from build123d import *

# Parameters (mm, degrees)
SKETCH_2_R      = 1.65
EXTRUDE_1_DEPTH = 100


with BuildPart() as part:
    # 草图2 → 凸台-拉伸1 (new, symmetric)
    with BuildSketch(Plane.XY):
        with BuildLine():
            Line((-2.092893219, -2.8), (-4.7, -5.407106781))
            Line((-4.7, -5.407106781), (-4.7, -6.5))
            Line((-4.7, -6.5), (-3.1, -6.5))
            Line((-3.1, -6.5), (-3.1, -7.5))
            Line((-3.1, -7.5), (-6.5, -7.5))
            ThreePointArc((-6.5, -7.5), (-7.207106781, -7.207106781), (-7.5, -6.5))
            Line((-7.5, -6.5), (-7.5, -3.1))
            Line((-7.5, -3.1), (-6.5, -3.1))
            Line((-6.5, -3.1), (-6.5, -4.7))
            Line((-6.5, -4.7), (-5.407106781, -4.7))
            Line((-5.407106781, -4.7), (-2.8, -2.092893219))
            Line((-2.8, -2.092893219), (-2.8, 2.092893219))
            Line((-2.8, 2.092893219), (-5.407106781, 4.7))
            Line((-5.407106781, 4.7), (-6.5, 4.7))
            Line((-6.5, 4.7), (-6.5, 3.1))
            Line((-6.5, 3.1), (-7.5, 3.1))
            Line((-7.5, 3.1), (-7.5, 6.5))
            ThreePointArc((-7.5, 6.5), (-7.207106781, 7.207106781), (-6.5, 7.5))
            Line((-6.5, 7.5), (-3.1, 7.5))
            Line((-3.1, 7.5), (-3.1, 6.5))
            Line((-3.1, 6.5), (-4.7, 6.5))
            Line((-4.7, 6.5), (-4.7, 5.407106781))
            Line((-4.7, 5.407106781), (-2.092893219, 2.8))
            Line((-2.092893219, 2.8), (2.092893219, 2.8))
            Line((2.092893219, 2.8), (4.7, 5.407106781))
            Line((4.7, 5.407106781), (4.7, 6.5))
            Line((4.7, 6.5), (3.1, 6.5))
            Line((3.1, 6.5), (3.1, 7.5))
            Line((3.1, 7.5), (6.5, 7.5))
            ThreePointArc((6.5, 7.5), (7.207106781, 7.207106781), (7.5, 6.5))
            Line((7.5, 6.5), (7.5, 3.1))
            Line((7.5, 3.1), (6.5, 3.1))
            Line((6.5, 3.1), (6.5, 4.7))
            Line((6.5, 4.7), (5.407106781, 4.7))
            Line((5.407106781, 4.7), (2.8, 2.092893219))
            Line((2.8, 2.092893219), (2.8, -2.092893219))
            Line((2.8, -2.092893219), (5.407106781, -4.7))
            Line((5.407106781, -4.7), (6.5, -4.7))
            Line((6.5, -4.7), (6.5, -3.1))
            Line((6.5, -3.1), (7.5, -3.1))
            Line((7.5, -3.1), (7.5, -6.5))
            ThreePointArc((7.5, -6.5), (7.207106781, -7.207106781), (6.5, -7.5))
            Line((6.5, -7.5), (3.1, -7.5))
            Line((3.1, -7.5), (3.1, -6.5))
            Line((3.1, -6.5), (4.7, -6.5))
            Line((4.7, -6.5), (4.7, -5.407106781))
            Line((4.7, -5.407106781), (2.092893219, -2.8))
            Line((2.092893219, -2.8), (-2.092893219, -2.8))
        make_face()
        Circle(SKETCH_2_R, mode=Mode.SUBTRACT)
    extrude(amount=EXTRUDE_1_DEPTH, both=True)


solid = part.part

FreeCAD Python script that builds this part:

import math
import FreeCAD as App
import Part
import Sketcher

V = App.Vector
Q = App.Units.Quantity

doc = App.newDocument("Part")
body = doc.addObject("PartDesign::Body", "Body")

# Sketch on XY plane
sketch1 = body.newObject("Sketcher::SketchObject", "Sketch")
sketch1.AttachmentSupport = (doc.getObject("XY_Plane"), [""])
sketch1.MapMode = "FlatFace"
sketch1.addGeometry([
    Part.LineSegment(V(-4.7, -5.407107, 0), V(-2.092893, -2.8, 0)),  # 0
    Part.LineSegment(V(-2.092893, -2.8, 0), V(2.092893, -2.8, 0)),  # 1
    Part.LineSegment(V(2.092893, -2.8, 0), V(4.7, -5.407107, 0)),  # 2
    Part.LineSegment(V(4.7, -5.407107, 0), V(4.7, -6.5, 0)),  # 3
    Part.LineSegment(V(4.7, -6.5, 0), V(3.1, -6.5, 0)),  # 4
    Part.LineSegment(V(3.1, -6.5, 0), V(3.1, -7.5, 0)),  # 5
    Part.LineSegment(V(3.1, -7.5, 0), V(6.5, -7.5, 0)),  # 6
    Part.ArcOfCircle(Part.Circle(V(6.5, -6.5, 0), V(0, 0, 1), 1), math.radians(-90), math.radians(0)),  # 7
    Part.LineSegment(V(7.5, -6.5, 0), V(7.5, -3.1, 0)),  # 8
    Part.LineSegment(V(7.5, -3.1, 0), V(6.5, -3.1, 0)),  # 9
    Part.LineSegment(V(6.5, -3.1, 0), V(6.5, -4.7, 0)),  # 10
    Part.LineSegment(V(6.5, -4.7, 0), V(5.407107, -4.7, 0)),  # 11
    Part.LineSegment(V(5.407107, -4.7, 0), V(2.8, -2.092893, 0)),  # 12
    Part.LineSegment(V(2.8, -2.092893, 0), V(2.8, 2.092893, 0)),  # 13
    Part.LineSegment(V(2.8, 2.092893, 0), V(5.407107, 4.7, 0)),  # 14
    Part.LineSegment(V(5.407107, 4.7, 0), V(6.5, 4.7, 0)),  # 15
    Part.LineSegment(V(6.5, 4.7, 0), V(6.5, 3.1, 0)),  # 16
    Part.LineSegment(V(6.5, 3.1, 0), V(7.5, 3.1, 0)),  # 17
    Part.LineSegment(V(7.5, 3.1, 0), V(7.5, 6.5, 0)),  # 18
    Part.ArcOfCircle(Part.Circle(V(6.5, 6.5, 0), V(0, 0, 1), 1), math.radians(0), math.radians(90)),  # 19
    Part.LineSegment(V(6.5, 7.5, 0), V(3.1, 7.5, 0)),  # 20
    Part.LineSegment(V(3.1, 7.5, 0), V(3.1, 6.5, 0)),  # 21
    Part.LineSegment(V(3.1, 6.5, 0), V(4.7, 6.5, 0)),  # 22
    Part.LineSegment(V(4.7, 6.5, 0), V(4.7, 5.407107, 0)),  # 23
    Part.LineSegment(V(4.7, 5.407107, 0), V(2.092893, 2.8, 0)),  # 24
    Part.LineSegment(V(2.092893, 2.8, 0), V(-2.092893, 2.8, 0)),  # 25
    Part.LineSegment(V(-2.092893, 2.8, 0), V(-4.7, 5.407107, 0)),  # 26
    Part.LineSegment(V(-4.7, 5.407107, 0), V(-4.7, 6.5, 0)),  # 27
    Part.LineSegment(V(-4.7, 6.5, 0), V(-3.1, 6.5, 0)),  # 28
    Part.LineSegment(V(-3.1, 6.5, 0), V(-3.1, 7.5, 0)),  # 29
    Part.LineSegment(V(-3.1, 7.5, 0), V(-6.5, 7.5, 0)),  # 30
    Part.ArcOfCircle(Part.Circle(V(-6.5, 6.5, 0), V(0, 0, 1), 1), math.radians(90), math.radians(180)),  # 31
    Part.LineSegment(V(-7.5, 6.5, 0), V(-7.5, 3.1, 0)),  # 32
    Part.LineSegment(V(-7.5, 3.1, 0), V(-6.5, 3.1, 0)),  # 33
    Part.LineSegment(V(-6.5, 3.1, 0), V(-6.5, 4.7, 0)),  # 34
    Part.LineSegment(V(-6.5, 4.7, 0), V(-5.407107, 4.7, 0)),  # 35
    Part.LineSegment(V(-5.407107, 4.7, 0), V(-2.8, 2.092893, 0)),  # 36
    Part.LineSegment(V(-2.8, 2.092893, 0), V(-2.8, -2.092893, 0)),  # 37
    Part.LineSegment(V(-2.8, -2.092893, 0), V(-5.407107, -4.7, 0)),  # 38
    Part.LineSegment(V(-5.407107, -4.7, 0), V(-6.5, -4.7, 0)),  # 39
    Part.LineSegment(V(-6.5, -4.7, 0), V(-6.5, -3.1, 0)),  # 40
    Part.LineSegment(V(-6.5, -3.1, 0), V(-7.5, -3.1, 0)),  # 41
    Part.LineSegment(V(-7.5, -3.1, 0), V(-7.5, -6.5, 0)),  # 42
    Part.ArcOfCircle(Part.Circle(V(-6.5, -6.5, 0), V(0, 0, 1), 1), math.radians(-180), math.radians(-90)),  # 43
    Part.LineSegment(V(-6.5, -7.5, 0), V(-3.1, -7.5, 0)),  # 44
    Part.LineSegment(V(-3.1, -7.5, 0), V(-3.1, -6.5, 0)),  # 45
    Part.LineSegment(V(-3.1, -6.5, 0), V(-4.7, -6.5, 0)),  # 46
    Part.LineSegment(V(-4.7, -6.5, 0), V(-4.7, -5.407107, 0)),  # 47
    Part.Circle(V(0, 0, 0), V(0, 0, 1), 1.65),  # 48
], False)
sketch1.addConstraint([
    Sketcher.Constraint("Coincident", 0, 2, 1, 1),
    Sketcher.Constraint("Coincident", 1, 2, 2, 1),
    Sketcher.Constraint("Coincident", 2, 2, 3, 1),
    Sketcher.Constraint("Coincident", 3, 2, 4, 1),
    Sketcher.Constraint("Coincident", 4, 2, 5, 1),
    Sketcher.Constraint("Coincident", 5, 2, 6, 1),
    Sketcher.Constraint("Tangent", 6, 2, 7, 1),
    Sketcher.Constraint("Tangent", 7, 2, 8, 1),
    Sketcher.Constraint("Coincident", 8, 2, 9, 1),
    Sketcher.Constraint("Coincident", 9, 2, 10, 1),
    Sketcher.Constraint("Coincident", 10, 2, 11, 1),
    Sketcher.Constraint("Coincident", 11, 2, 12, 1),
    Sketcher.Constraint("Coincident", 12, 2, 13, 1),
    Sketcher.Constraint("Coincident", 13, 2, 14, 1),
    Sketcher.Constraint("Coincident", 14, 2, 15, 1),
    Sketcher.Constraint("Coincident", 15, 2, 16, 1),
    Sketcher.Constraint("Coincident", 16, 2, 17, 1),
    Sketcher.Constraint("Coincident", 17, 2, 18, 1),
    Sketcher.Constraint("Tangent", 18, 2, 19, 1),
    Sketcher.Constraint("Tangent", 19, 2, 20, 1),
    Sketcher.Constraint("Coincident", 20, 2, 21, 1),
    Sketcher.Constraint("Coincident", 21, 2, 22, 1),
    Sketcher.Constraint("Coincident", 22, 2, 23, 1),
    Sketcher.Constraint("Coincident", 23, 2, 24, 1),
    Sketcher.Constraint("Coincident", 24, 2, 25, 1),
    Sketcher.Constraint("Coincident", 25, 2, 26, 1),
    Sketcher.Constraint("Coincident", 26, 2, 27, 1),
    Sketcher.Constraint("Coincident", 27, 2, 28, 1),
    Sketcher.Constraint("Coincident", 28, 2, 29, 1),
    Sketcher.Constraint("Coincident", 29, 2, 30, 1),
    Sketcher.Constraint("Tangent", 30, 2, 31, 1),
    Sketcher.Constraint("Tangent", 31, 2, 32, 1),
    Sketcher.Constraint("Coincident", 32, 2, 33, 1),
    Sketcher.Constraint("Coincident", 33, 2, 34, 1),
    Sketcher.Constraint("Coincident", 34, 2, 35, 1),
    Sketcher.Constraint("Coincident", 35, 2, 36, 1),
    Sketcher.Constraint("Coincident", 36, 2, 37, 1),
    Sketcher.Constraint("Coincident", 37, 2, 38, 1),
    Sketcher.Constraint("Coincident", 38, 2, 39, 1),
    Sketcher.Constraint("Coincident", 39, 2, 40, 1),
    Sketcher.Constraint("Coincident", 40, 2, 41, 1),
    Sketcher.Constraint("Coincident", 41, 2, 42, 1),
    Sketcher.Constraint("Tangent", 42, 2, 43, 1),
    Sketcher.Constraint("Tangent", 43, 2, 44, 1),
    Sketcher.Constraint("Coincident", 44, 2, 45, 1),
    Sketcher.Constraint("Coincident", 45, 2, 46, 1),
    Sketcher.Constraint("Coincident", 46, 2, 47, 1),
    Sketcher.Constraint("Coincident", 47, 2, 0, 1),
    Sketcher.Constraint("Horizontal", 1),
    Sketcher.Constraint("Vertical", 3),
    Sketcher.Constraint("Horizontal", 4),
    Sketcher.Constraint("Vertical", 5),
    Sketcher.Constraint("Horizontal", 6),
    Sketcher.Constraint("Vertical", 8),
    Sketcher.Constraint("Horizontal", 9),
    Sketcher.Constraint("Vertical", 10),
    Sketcher.Constraint("Horizontal", 11),
    Sketcher.Constraint("Vertical", 13),
    Sketcher.Constraint("Horizontal", 15),
    Sketcher.Constraint("Vertical", 16),
    Sketcher.Constraint("Horizontal", 17),
    Sketcher.Constraint("Vertical", 18),
    Sketcher.Constraint("Horizontal", 20),
    Sketcher.Constraint("Vertical", 21),
    Sketcher.Constraint("Horizontal", 22),
    Sketcher.Constraint("Vertical", 23),
    Sketcher.Constraint("Horizontal", 25),
    Sketcher.Constraint("Vertical", 27),
    Sketcher.Constraint("Horizontal", 28),
    Sketcher.Constraint("Vertical", 29),
    Sketcher.Constraint("Horizontal", 30),
    Sketcher.Constraint("Vertical", 32),
    Sketcher.Constraint("Horizontal", 33),
    Sketcher.Constraint("Vertical", 34),
    Sketcher.Constraint("Horizontal", 35),
    Sketcher.Constraint("Vertical", 37),
    Sketcher.Constraint("Horizontal", 39),
    Sketcher.Constraint("Vertical", 40),
    Sketcher.Constraint("Horizontal", 41),
    Sketcher.Constraint("Vertical", 42),
    Sketcher.Constraint("Horizontal", 44),
    Sketcher.Constraint("Vertical", 45),
    Sketcher.Constraint("Horizontal", 46),
    Sketcher.Constraint("Vertical", 47),
    Sketcher.Constraint("Coincident", 48, 3, -1, 1),
    Sketcher.Constraint("Equal", 7, 19),
    Sketcher.Constraint("Equal", 19, 31),
    Sketcher.Constraint("Equal", 31, 43),
    Sketcher.Constraint("Symmetric", 7, 3, 31, 3, -1, 1),
    Sketcher.Constraint("Symmetric", 19, 3, 43, 3, -1, 1),
    Sketcher.Constraint("Symmetric", 0, 2, 24, 2, -1, 1),
    Sketcher.Constraint("Symmetric", 2, 2, 26, 2, -1, 1),
    Sketcher.Constraint("Symmetric", 4, 2, 28, 2, -1, 1),
    Sketcher.Constraint("Symmetric", 9, 2, 33, 2, -1, 1),
    Sketcher.Constraint("Symmetric", 11, 2, 35, 2, -1, 1),
    Sketcher.Constraint("Symmetric", 12, 2, 36, 2, -1, 1),
    Sketcher.Constraint("Symmetric", 14, 2, 38, 2, -1, 1),
    Sketcher.Constraint("Symmetric", 16, 2, 40, 2, -1, 1),
    Sketcher.Constraint("Symmetric", 21, 2, 45, 2, -1, 1),
    Sketcher.Constraint("Symmetric", 23, 2, 47, 2, -1, 1),
    Sketcher.Constraint("Symmetric", 19, 3, 31, 3, -2),
    Sketcher.Constraint("Symmetric", 23, 2, 26, 2, -2),
    Sketcher.Constraint("Symmetric", 21, 2, 28, 2, -2),
    Sketcher.Constraint("Symmetric", 16, 2, 33, 2, -2),
    Sketcher.Constraint("Symmetric", 14, 2, 35, 2, -2),
    Sketcher.Constraint("Perpendicular", 0, 2),
    Sketcher.Constraint("Parallel", 2, 12),
    Sketcher.Constraint("Perpendicular", 12, 14),
    Sketcher.Constraint("Perpendicular", 24, 26),
    Sketcher.Constraint("Perpendicular", 36, 38),
    Sketcher.Constraint("Horizontal", 43, 3, 3, 2),
    Sketcher.Constraint("Horizontal", 13, 2, 36, 2),
    Sketcher.Constraint("Vertical", 6, 2, 9, 2),
    Sketcher.Constraint("Equal", 39, 3),
    Sketcher.Constraint("Equal", 44, 8),
    Sketcher.Constraint("Equal", 46, 10),
    Sketcher.Constraint("Equal", 25, 13),
    Sketcher.Constraint("Equal", 2, 12),
    Sketcher.Constraint("Radius", 7, Q("1 mm")),
    Sketcher.Constraint("Diameter", 48, Q("3.3 mm")),
    Sketcher.Constraint("DistanceX", 4, 2, 4, 1, Q("1.6 mm")),
    Sketcher.Constraint("DistanceX", 6, 1, 6, 2, Q("3.4 mm")),
    Sketcher.Constraint("DistanceY", 7, 3, 19, 3, Q("13 mm")),
    Sketcher.Constraint("DistanceY", 0, 2, -1, 1, Q("2.8 mm")),
    Sketcher.Constraint("DistanceX", 1, 1, 1, 2, Q("4.185786 mm")),
])
pad1 = body.newObject("PartDesign::Pad", "Pad")
pad1.Profile = sketch1
pad1.Length = 200
pad1.Midplane = True

doc.recompute()
